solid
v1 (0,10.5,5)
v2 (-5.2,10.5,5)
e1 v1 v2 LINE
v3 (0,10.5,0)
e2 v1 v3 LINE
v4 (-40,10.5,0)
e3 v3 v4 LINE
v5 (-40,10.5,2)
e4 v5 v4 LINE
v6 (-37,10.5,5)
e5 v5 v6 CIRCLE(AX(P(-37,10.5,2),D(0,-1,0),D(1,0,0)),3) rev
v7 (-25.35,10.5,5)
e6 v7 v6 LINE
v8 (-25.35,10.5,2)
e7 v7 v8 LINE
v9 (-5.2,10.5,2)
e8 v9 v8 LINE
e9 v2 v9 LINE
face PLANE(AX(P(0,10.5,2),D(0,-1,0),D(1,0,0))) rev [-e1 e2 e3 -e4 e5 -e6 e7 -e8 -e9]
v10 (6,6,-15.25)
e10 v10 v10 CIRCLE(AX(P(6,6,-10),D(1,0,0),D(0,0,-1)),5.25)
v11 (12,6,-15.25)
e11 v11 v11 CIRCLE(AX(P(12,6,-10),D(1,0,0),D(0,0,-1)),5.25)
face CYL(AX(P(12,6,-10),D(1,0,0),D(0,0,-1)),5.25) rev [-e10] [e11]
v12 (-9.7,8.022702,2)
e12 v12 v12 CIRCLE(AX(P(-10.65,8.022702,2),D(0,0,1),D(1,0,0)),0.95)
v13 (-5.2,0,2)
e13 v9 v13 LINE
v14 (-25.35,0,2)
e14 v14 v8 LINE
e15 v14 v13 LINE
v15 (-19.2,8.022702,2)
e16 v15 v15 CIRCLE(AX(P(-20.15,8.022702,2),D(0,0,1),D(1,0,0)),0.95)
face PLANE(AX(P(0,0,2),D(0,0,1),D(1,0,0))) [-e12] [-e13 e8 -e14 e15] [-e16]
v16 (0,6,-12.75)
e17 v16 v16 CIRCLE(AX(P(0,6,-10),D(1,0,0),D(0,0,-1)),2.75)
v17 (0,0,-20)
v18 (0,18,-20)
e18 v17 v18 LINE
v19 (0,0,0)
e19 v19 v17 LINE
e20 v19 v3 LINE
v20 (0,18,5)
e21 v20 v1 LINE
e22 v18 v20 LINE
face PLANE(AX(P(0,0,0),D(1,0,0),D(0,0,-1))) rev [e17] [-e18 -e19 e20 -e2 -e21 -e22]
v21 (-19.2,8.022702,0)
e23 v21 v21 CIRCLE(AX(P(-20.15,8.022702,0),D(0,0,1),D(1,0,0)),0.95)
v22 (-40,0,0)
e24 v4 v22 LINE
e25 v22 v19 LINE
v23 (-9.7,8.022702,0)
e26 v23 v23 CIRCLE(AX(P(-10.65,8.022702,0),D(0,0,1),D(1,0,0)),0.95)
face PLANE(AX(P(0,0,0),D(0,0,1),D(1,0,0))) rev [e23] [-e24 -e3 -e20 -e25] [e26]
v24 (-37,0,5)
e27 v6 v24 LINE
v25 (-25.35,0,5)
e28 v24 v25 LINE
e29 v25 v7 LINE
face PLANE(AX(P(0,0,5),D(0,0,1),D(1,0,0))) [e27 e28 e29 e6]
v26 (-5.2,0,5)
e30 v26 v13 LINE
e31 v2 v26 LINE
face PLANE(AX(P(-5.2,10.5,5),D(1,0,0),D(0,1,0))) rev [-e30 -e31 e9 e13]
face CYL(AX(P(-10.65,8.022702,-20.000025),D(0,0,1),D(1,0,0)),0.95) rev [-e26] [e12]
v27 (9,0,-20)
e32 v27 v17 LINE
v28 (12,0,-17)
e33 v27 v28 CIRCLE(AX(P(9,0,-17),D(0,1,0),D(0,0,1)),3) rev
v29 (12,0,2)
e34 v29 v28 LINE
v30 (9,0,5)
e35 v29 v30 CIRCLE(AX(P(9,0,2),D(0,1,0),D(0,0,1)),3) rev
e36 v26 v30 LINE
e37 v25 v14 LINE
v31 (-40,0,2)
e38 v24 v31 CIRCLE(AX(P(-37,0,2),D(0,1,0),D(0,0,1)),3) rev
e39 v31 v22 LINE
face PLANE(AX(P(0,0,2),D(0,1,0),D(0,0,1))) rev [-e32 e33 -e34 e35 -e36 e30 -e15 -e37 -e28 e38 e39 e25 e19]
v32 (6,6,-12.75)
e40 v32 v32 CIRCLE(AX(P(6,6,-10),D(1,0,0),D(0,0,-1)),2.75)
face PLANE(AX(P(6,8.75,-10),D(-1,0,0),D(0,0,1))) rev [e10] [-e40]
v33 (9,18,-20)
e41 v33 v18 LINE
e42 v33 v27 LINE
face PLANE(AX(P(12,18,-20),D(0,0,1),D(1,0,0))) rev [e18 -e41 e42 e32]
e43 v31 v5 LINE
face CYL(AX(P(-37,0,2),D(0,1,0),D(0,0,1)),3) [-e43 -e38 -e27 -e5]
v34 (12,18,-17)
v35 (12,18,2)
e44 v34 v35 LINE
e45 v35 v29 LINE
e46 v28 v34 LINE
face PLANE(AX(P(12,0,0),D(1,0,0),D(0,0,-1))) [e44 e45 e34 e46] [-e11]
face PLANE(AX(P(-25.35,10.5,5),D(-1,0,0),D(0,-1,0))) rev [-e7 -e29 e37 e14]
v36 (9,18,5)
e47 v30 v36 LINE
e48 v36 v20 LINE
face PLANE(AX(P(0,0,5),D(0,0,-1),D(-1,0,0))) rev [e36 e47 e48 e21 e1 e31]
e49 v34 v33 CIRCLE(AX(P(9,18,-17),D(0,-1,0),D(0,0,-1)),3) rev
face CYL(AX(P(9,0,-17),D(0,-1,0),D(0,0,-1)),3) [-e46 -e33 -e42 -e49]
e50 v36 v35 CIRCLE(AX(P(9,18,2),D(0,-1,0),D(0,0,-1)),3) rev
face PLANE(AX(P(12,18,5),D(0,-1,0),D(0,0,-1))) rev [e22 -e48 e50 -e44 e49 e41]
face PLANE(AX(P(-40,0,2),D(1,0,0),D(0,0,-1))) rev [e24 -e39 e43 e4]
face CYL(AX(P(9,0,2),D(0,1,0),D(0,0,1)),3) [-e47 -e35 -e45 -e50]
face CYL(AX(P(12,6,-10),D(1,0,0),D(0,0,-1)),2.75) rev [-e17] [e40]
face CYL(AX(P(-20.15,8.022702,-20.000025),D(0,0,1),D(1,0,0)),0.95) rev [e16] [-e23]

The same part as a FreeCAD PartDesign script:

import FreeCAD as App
import Part
import Sketcher
from FreeCAD import Vector


def edges_at(feature, points):
    """Names of the edges that pass closest to the given points."""
    edges = feature.Shape.Edges
    near = lambda p: min(range(len(edges)), key=lambda i: edges[i].distToShape(Part.Vertex(*p))[0])
    return sorted({f"Edge{near(p) + 1}" for p in points})

doc = App.newDocument("Part")
body = doc.addObject("PartDesign::Body", "Body")

sketch1 = body.newObject("Sketcher::SketchObject", "Sketch")
sketch1.AttachmentSupport = (doc.getObject("XY_Plane"), [""])
sketch1.MapMode = "FlatFace"
sketch1.addGeometry([
    Part.LineSegment(Vector(-40, 10, 0), Vector(-40, 0, 0)),
    Part.LineSegment(Vector(-40, 0, 0), Vector(0, 0, 0)),
    Part.LineSegment(Vector(0, 0, 0), Vector(0, 10, 0)),
    Part.LineSegment(Vector(0, 10, 0), Vector(-40, 10, 0)),
], False)
sketch1.addConstraint([
    Sketcher.Constraint("Coincident", 0, 2, 1, 1),
    Sketcher.Constraint("Coincident", 1, 2, 2, 1),
    Sketcher.Constraint("Coincident", 2, 2, 3, 1),
    Sketcher.Constraint("Coincident", 3, 2, 0, 1),
    Sketcher.Constraint("Vertical", 0),
    Sketcher.Constraint("Horizontal", 1),
    Sketcher.Constraint("Vertical", 2),
    Sketcher.Constraint("Horizontal", 3),
    Sketcher.Constraint("Coincident", 1, 2, -1, 1),
    Sketcher.Constraint("DistanceX", 1, 1, 1, 2, 40.0),
    Sketcher.Constraint("DistanceY", 0, 2, 0, 1, 10.5),
])
pad1 = body.newObject("PartDesign::Pad", "Pad")
pad1.Profile = sketch1
pad1.Length = 2

sketch2 = body.newObject("Sketcher::SketchObject", "Sketch001")
sketch2.AttachmentSupport = (doc.getObject("XY_Plane"), [""])
sketch2.MapMode = "FlatFace"
sketch2.AttachmentOffset = App.Placement(Vector(0, 0, 2), App.Rotation())
sketch2.addGeometry([
    Part.LineSegment(Vector(-40, 10, 0), Vector(-40, 0, 0)),
    Part.LineSegment(Vector(-40, 0, 0), Vector(-25, 0, 0)),
    Part.LineSegment(Vector(-25, 0, 0), Vector(-25, 10, 0)),
    Part.LineSegment(Vector(-25, 10, 0), Vector(-40, 10, 0)),
    Part.LineSegment(Vector(-5, 10, 0), Vector(-5, 0, 0)),
    Part.LineSegment(Vector(-5, 0, 0), Vector(0, 0, 0)),
    Part.LineSegment(Vector(0, 0, 0), Vector(0, 10, 0)),
    Part.LineSegment(Vector(0, 10, 0), Vector(-5, 10, 0)),
], False)
sketch2.addConstraint([
    Sketcher.Constraint("Coincident", 0, 2, 1, 1),
    Sketcher.Constraint("Coincident", 1, 2, 2, 1),
    Sketcher.Constraint("Coincident", 2, 2, 3, 1),
    Sketcher.Constraint("Coincident", 3, 2, 0, 1),
    Sketcher.Constraint("Coincident", 4, 2, 5, 1),
    Sketcher.Constraint("Coincident", 5, 2, 6, 1),
    Sketcher.Constraint("Coincident", 6, 2, 7, 1),
    Sketcher.Constraint("Coincident", 7, 2, 4, 1),
    Sketcher.Constraint("Vertical", 0),
    Sketcher.Constraint("Horizontal", 1),
    Sketcher.Constraint("Vertical", 2),
    Sketcher.Constraint("Horizontal", 3),
    Sketcher.Constraint("Vertical", 4),
    Sketcher.Constraint("Horizontal", 5),
    Sketcher.Constraint("Vertical", 6),
    Sketcher.Constraint("Horizontal", 7),
    Sketcher.Constraint("Coincident", 5, 2, -1, 1),
    Sketcher.Constraint("PointOnObject", 0, 2, -1),
    Sketcher.Constraint("Horizontal", 3, 2, 6, 2),
    Sketcher.Constraint("DistanceX", 5, 1, 5, 2, 5.2),
    Sketcher.Constraint("DistanceY", 0, 2, 0, 1, 10.5),
    Sketcher.Constraint("DistanceX", 0, 2, -1, 1, 40.0),
    Sketcher.Constraint("DistanceX", 1, 1, 1, 2, 14.65),
])
pad2 = body.newObject("PartDesign::Pad", "Pad001")
pad2.Profile = sketch2
pad2.Length = 3

sketch3 = body.newObject("Sketcher::SketchObject", "Sketch002")
sketch3.AttachmentSupport = (doc.getObject("YZ_Plane"), [""])
sketch3.MapMode = "FlatFace"
sketch3.addGeometry([
    Part.LineSegment(Vector(18, 5, 0), Vector(0, 5, 0)),
    Part.LineSegment(Vector(0, 5, 0), Vector(0, -20, 0)),
    Part.LineSegment(Vector(0, -20, 0), Vector(18, -20, 0)),
    Part.LineSegment(Vector(18, -20, 0), Vector(18, 5, 0)),
], False)
sketch3.addConstraint([
    Sketcher.Constraint("Coincident", 0, 2, 1, 1),
    Sketcher.Constraint("Coincident", 1, 2, 2, 1),
    Sketcher.Constraint("Coincident", 2, 2, 3, 1),
    Sketcher.Constraint("Coincident", 3, 2, 0, 1),
    Sketcher.Constraint("Horizontal", 0),
    Sketcher.Constraint("Vertical", 1),
    Sketcher.Constraint("Horizontal", 2),
    Sketcher.Constraint("Vertical", 3),
    Sketcher.Constraint("PointOnObject", 0, 2, -2),
    Sketcher.Constraint("DistanceX", 0, 2, 0, 1, 18.0),
    Sketcher.Constraint("DistanceY", 1, 2, 1, 1, 25.0),
    Sketcher.Constraint("DistanceY", -1, 1, 0, 2, 5.0),
])
pad3 = body.newObject("PartDesign::Pad", "Pad002")
pad3.Profile = sketch3
pad3.Length = 12

sketch4 = body.newObject("Sketcher::SketchObject", "Sketch003")
sketch4.AttachmentSupport = (doc.getObject("YZ_Plane"), [""])
sketch4.MapMode = "FlatFace"
sketch4.AttachmentOffset = App.Placement(Vector(0, 0, 12), App.Rotation())
sketch4.addGeometry(Part.Circle(Vector(6, -10, 0), Vector(0, 0, 1), 2.8), False)
sketch4.addConstraint([
    Sketcher.Constraint("Diameter", 0, 5.5),
    Sketcher.Constraint("DistanceX", -1, 1, 0, 3, 6.0),
    Sketcher.Constraint("DistanceY", 0, 3, -1, 1, 10.0),
])
doc.recompute()
hole = body.newObject("PartDesign::Hole", "Hole")
hole.Profile = sketch4
hole.ThreadType = "None"
hole.Diameter = 5.5
hole.DepthType = "Dimension"
hole.Depth = 12
hole.DrillPoint = "Flat"
hole.HoleCutType = "Counterbore"
hole.HoleCutDiameter = 10.5
hole.HoleCutDepth = 6
doc.recompute()

fillet = body.newObject("PartDesign::Fillet", "Fillet")
fillet.Base = (hole, edges_at(hole, [(-40, 5.25, 5), (12, 9, 5), (12, 9, -20)]))
fillet.Radius = 3

sketch5 = body.newObject("Sketcher::SketchObject", "Sketch004")
sketch5.AttachmentSupport = (doc.getObject("XY_Plane"), [""])
sketch5.MapMode = "FlatFace"
sketch5.AttachmentOffset = App.Placement(Vector(0, 0, 2), App.Rotation())
sketch5.addGeometry([
    Part.Circle(Vector(-20.1, 8, 0), Vector(0, 0, 1), 0.9),
    Part.Circle(Vector(-10.7, 8, 0), Vector(0, 0, 1), 0.9),
], False)
sketch5.addConstraint([
    Sketcher.Constraint("Equal", 0, 1),
    Sketcher.Constraint("Horizontal", 0, 3, 1, 3),
    Sketcher.Constraint("Diameter", 0, 1.9),
    Sketcher.Constraint("DistanceX", 0, 3, 1, 3, 9.5),
    Sketcher.Constraint("DistanceX", 0, 3, -1, 1, 20.15),
    Sketcher.Constraint("DistanceY", -1, 1, 0, 3, 8.022702),
])
pocket1 = body.newObject("PartDesign::Pocket", "Pocket")
pocket1.Profile = sketch5
pocket1.Type = "ThroughAll"

doc.recompute()
